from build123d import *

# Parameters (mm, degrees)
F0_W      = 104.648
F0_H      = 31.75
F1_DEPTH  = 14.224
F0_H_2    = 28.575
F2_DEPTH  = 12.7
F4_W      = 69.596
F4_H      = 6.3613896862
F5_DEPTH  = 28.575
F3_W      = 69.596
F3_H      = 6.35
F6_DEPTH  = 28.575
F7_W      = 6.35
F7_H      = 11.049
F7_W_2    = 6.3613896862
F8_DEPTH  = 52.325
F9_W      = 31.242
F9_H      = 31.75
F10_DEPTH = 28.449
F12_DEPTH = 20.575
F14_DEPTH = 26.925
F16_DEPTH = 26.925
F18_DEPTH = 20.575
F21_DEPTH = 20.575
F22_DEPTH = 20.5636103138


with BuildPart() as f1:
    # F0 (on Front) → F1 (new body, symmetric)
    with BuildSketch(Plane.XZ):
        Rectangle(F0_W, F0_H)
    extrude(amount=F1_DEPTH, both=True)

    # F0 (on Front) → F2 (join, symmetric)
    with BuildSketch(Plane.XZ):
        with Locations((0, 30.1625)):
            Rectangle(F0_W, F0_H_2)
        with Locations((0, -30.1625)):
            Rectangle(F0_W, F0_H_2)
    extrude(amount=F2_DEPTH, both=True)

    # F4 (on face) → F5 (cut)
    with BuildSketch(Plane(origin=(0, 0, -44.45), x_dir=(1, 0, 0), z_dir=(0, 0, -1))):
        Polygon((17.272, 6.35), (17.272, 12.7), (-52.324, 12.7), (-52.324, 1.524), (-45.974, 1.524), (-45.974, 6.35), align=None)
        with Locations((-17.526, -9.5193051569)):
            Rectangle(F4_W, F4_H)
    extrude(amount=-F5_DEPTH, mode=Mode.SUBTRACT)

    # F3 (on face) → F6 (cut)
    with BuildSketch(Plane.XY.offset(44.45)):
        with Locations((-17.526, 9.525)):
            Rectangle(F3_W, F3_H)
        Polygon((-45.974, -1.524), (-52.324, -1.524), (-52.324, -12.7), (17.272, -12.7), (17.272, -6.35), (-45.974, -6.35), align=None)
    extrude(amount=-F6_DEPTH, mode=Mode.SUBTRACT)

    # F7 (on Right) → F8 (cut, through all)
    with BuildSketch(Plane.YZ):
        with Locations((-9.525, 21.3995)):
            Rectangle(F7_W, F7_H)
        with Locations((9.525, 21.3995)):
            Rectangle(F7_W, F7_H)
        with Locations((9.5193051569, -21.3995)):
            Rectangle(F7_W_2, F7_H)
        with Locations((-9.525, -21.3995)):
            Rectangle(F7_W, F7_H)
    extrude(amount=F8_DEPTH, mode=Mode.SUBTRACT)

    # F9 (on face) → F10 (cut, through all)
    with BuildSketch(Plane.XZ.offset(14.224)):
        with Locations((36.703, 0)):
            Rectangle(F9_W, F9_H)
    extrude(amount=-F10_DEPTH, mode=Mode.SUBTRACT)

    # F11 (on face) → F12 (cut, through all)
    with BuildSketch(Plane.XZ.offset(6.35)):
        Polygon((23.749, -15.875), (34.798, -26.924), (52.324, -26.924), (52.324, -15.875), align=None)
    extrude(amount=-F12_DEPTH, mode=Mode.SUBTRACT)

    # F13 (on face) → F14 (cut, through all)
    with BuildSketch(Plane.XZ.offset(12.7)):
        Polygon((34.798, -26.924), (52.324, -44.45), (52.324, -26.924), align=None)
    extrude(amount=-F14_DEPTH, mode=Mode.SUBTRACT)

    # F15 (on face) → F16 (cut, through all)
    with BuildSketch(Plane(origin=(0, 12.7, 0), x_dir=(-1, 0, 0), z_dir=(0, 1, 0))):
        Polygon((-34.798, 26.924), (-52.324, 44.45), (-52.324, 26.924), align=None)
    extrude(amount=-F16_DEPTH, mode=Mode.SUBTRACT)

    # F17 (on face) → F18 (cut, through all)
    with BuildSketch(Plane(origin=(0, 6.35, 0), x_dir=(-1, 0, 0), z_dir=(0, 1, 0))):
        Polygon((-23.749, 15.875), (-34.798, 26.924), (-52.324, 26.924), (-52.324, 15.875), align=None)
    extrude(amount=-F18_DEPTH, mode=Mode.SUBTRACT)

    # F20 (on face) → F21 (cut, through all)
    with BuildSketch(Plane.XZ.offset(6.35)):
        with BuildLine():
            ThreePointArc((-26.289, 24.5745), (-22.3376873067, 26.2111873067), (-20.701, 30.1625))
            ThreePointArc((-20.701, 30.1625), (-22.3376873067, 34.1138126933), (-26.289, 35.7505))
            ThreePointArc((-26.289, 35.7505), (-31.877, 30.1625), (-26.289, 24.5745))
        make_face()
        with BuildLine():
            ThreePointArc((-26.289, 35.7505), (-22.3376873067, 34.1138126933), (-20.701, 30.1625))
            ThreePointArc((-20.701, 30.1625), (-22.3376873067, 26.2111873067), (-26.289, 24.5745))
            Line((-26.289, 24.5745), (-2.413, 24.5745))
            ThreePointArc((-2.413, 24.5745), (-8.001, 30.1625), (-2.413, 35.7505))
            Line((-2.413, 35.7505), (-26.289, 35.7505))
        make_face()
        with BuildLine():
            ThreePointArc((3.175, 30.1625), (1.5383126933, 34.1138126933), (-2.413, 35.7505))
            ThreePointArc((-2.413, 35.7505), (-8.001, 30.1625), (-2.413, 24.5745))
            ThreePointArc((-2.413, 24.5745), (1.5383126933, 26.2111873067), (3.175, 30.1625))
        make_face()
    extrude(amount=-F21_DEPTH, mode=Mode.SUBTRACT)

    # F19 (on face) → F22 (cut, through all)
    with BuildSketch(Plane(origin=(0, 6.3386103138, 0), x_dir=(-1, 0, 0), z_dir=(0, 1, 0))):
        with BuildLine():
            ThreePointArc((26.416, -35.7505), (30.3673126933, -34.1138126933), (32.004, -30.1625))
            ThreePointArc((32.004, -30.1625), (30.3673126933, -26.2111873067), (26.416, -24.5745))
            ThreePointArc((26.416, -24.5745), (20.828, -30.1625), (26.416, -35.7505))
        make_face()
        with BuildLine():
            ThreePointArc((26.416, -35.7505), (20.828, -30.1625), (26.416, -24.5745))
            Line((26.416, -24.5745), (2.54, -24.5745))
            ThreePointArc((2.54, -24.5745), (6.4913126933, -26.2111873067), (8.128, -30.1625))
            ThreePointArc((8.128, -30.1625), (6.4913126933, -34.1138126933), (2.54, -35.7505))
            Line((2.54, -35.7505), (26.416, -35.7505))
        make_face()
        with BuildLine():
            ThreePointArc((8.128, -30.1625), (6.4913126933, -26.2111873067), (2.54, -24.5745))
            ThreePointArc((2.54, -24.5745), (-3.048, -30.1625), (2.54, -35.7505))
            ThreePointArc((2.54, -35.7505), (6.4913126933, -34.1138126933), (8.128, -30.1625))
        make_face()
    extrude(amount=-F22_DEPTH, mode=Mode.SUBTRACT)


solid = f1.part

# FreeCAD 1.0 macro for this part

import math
import FreeCAD as App
import Part
import Sketcher
from FreeCAD import Vector
Q = App.Units.Quantity


def add_polygon(sketch, points):
    """Adds a closed chain of lines whose ends are joined by coincident constraints."""
    first, n = sketch.GeometryCount, len(points)
    for a, b in zip(points, points[1:] + points[:1]):
        sketch.addGeometry(Part.LineSegment(App.Vector(*a, 0), App.Vector(*b, 0)), False)
    for i in range(n):
        sketch.addConstraint(Sketcher.Constraint("Coincident", first + i, 2, first + (i + 1) % n, 1))

doc = App.newDocument("Part")
body = doc.addObject("PartDesign::Body", "Body")

# Sketch on XZ plane
sketch1 = doc.addObject("Sketcher::SketchObject", "Sketch")
body.addObject(sketch1)
sketch1.AttachmentSupport = (doc.XZ_Plane, [""])
sketch1.MapMode = "FlatFace"
add_polygon(sketch1, [(-52, 16), (-52, -16), (52, -16), (52, 16)])  # lines 0-3
sketch1.addConstraint([
    Sketcher.Constraint("Vertical", 0),
    Sketcher.Constraint("Horizontal", 1),
    Sketcher.Constraint("Vertical", 2),
    Sketcher.Constraint("Horizontal", 3),
    Sketcher.Constraint("Symmetric", 0, 2, 2, 2, -1, 1),
    Sketcher.Constraint("DistanceX", 1, 1, 1, 2, Q("4.12 in")),
    Sketcher.Constraint("DistanceY", 0, 2, 0, 1, Q("1.25 in")),
])
pad1 = doc.addObject("PartDesign::Pad", "Pad")
body.addObject(pad1)
pad1.Profile = sketch1
pad1.Length = Q("1.12 in")
pad1.Midplane = True

# Sketch on XZ plane
sketch2 = doc.addObject("Sketcher::SketchObject", "Sketch001")
body.addObject(sketch2)
sketch2.AttachmentSupport = (doc.XZ_Plane, [""])
sketch2.MapMode = "FlatFace"
add_polygon(sketch2, [(-52, 44), (-52, 16), (52, 16), (52, 44)])  # lines 0-3
add_polygon(sketch2, [(-52, -16), (-52, -44), (52, -44), (52, -16)])  # lines 4-7
sketch2.addConstraint([
    Sketcher.Constraint("Vertical", 0),
    Sketcher.Constraint("Horizontal", 1),
    Sketcher.Constraint("Vertical", 2),
    Sketcher.Constraint("Horizontal", 3),
    Sketcher.Constraint("Vertical", 4),
    Sketcher.Constraint("Horizontal", 5),
    Sketcher.Constraint("Vertical", 6),
    Sketcher.Constraint("Horizontal", 7),
    Sketcher.Constraint("Symmetric", 2, 2, 4, 2, -1, 1),
    Sketcher.Constraint("Symmetric", 0, 2, 6, 2, -1, 1),
    Sketcher.Constraint("Vertical", 3, 2, 4, 2),
    Sketcher.Constraint("DistanceX", 1, 1, 1, 2, Q("4.12 in")),
    Sketcher.Constraint("DistanceY", 4, 2, 3, 2, Q("3.5 in")),
    Sketcher.Constraint("DistanceY", 0, 2, 0, 1, Q("1.125 in")),
])
pad2 = doc.addObject("PartDesign::Pad", "Pad001")
body.addObject(pad2)
pad2.Profile = sketch2
pad2.Length = Q("1 in")
pad2.Midplane = True

# Sketch on XY plane
sketch3 = doc.addObject("Sketcher::SketchObject", "Sketch002")
body.addObject(sketch3)
sketch3.AttachmentSupport = (doc.XY_Plane, [""])
sketch3.MapMode = "FlatFace"
sketch3.AttachmentOffset = App.Placement(Vector(0, 0, -1.75 * 25.4), App.Rotation())
add_polygon(sketch3, [(17.3, -6.3), (17.3, -12.7), (-52.3, -12.7), (-52.3, -1.5), (-46, -1.5), (-46, -6.3)])  # lines 0-5
add_polygon(sketch3, [(-52.3, 6.3), (-52.3, 12.7), (17.3, 12.7), (17.3, 6.3)])  # lines 6-9
sketch3.addConstraint([
    Sketcher.Constraint("Vertical", 0),
    Sketcher.Constraint("Horizontal", 1),
    Sketcher.Constraint("Vertical", 2),
    Sketcher.Constraint("Horizontal", 3),
    Sketcher.Constraint("Vertical", 4),
    Sketcher.Constraint("Horizontal", 5),
    Sketcher.Constraint("Vertical", 6),
    Sketcher.Constraint("Horizontal", 7),
    Sketcher.Constraint("Vertical", 8),
    Sketcher.Constraint("Horizontal", 9),
    Sketcher.Constraint("Symmetric", 1, 2, 6, 2, -1),
    Sketcher.Constraint("Vertical", 5, 2, 7, 2),
    Sketcher.Constraint("Equal", 3, 0),
    Sketcher.Constraint("DistanceY", 1, 2, 6, 2, Q("1 in")),
    Sketcher.Constraint("DistanceX", 1, 2, 1, 1, Q("2.74 in")),
    Sketcher.Constraint("DistanceX", 3, 1, 3, 2, Q("0.25 in")),
    Sketcher.Constraint("DistanceY", 2, 1, 2, 2, Q("0.44 in")),
    Sketcher.Constraint("DistanceX", -1, 1, 0, 2, Q("0.68 in")),
    Sketcher.Constraint("DistanceY", 6, 1, 6, 2, 6.36139),
])
pocket1 = doc.addObject("PartDesign::Pocket", "Pocket")
body.addObject(pocket1)
pocket1.Profile = sketch3
pocket1.Length = Q("1.125 in")
pocket1.Reversed = True

# Sketch on XY plane
sketch4 = doc.addObject("Sketcher::SketchObject", "Sketch003")
body.addObject(sketch4)
sketch4.AttachmentSupport = (doc.XY_Plane, [""])
sketch4.MapMode = "FlatFace"
sketch4.AttachmentOffset = App.Placement(Vector(0, 0, 1.75 * 25.4), App.Rotation())
add_polygon(sketch4, [(-52.3, 12.7), (-52.3, 6.3), (17.3, 6.3), (17.3, 12.7)])  # lines 0-3
add_polygon(sketch4, [(-46, -1.5), (-52.3, -1.5), (-52.3, -12.7), (17.3, -12.7), (17.3, -6.3), (-46, -6.3)])  # lines 4-9
sketch4.addConstraint([
    Sketcher.Constraint("Vertical", 0),
    Sketcher.Constraint("Horizontal", 1),
    Sketcher.Constraint("Vertical", 2),
    Sketcher.Constraint("Horizontal", 3),
    Sketcher.Constraint("Horizontal", 4),
    Sketcher.Constraint("Vertical", 5),
    Sketcher.Constraint("Horizontal", 6),
    Sketcher.Constraint("Vertical", 7),
    Sketcher.Constraint("Horizontal", 8),
    Sketcher.Constraint("Vertical", 9),
    Sketcher.Constraint("Symmetric", 3, 2, 5, 2, -1),
    Sketcher.Constraint("Symmetric", 1, 2, 7, 2, -1),
    Sketcher.Constraint("Equal", 4, 0),
    Sketcher.Constraint("DistanceY", 5, 2, 3, 2, Q("1 in")),
    Sketcher.Constraint("DistanceX", 1, 1, 1, 2, Q("2.74 in")),
    Sketcher.Constraint("DistanceX", 4, 2, 4, 1, Q("0.25 in")),
    Sketcher.Constraint("DistanceY", 5, 2, 5, 1, Q("0.44 in")),
    Sketcher.Constraint("DistanceX", 0, 2, -1, 1, Q("2.06 in")),
])
pocket2 = doc.addObject("PartDesign::Pocket", "Pocket001")
body.addObject(pocket2)
pocket2.Profile = sketch4
pocket2.Length = Q("1.125 in")

# Sketch on YZ plane
sketch5 = doc.addObject("Sketcher::SketchObject", "Sketch004")
body.addObject(sketch5)
sketch5.AttachmentSupport = (doc.YZ_Plane, [""])
sketch5.MapMode = "FlatFace"
add_polygon(sketch5, [(-13, 27), (-13, 16), (-6, 16), (-6, 27)])  # lines 0-3
add_polygon(sketch5, [(6, 27), (6, 16), (13, 16), (13, 27)])  # lines 4-7
add_polygon(sketch5, [(6, -16), (6, -27), (13, -27), (13, -16)])  # lines 8-11
add_polygon(sketch5, [(-13, -16), (-13, -27), (-6, -27), (-6, -16)])  # lines 12-15
sketch5.addConstraint([
    Sketcher.Constraint("Vertical", 0),
    Sketcher.Constraint("Horizontal", 1),
    Sketcher.Constraint("Vertical", 2),
    Sketcher.Constraint("Horizontal", 3),
    Sketcher.Constraint("Vertical", 4),
    Sketcher.Constraint("Horizontal", 5),
    Sketcher.Constraint("Vertical", 6),
    Sketcher.Constraint("Horizontal", 7),
    Sketcher.Constraint("Vertical", 8),
    Sketcher.Constraint("Horizontal", 9),
    Sketcher.Constraint("Vertical", 10),
    Sketcher.Constraint("Horizontal", 11),
    Sketcher.Constraint("Vertical", 12),
    Sketcher.Constraint("Horizontal", 13),
    Sketcher.Constraint("Vertical", 14),
    Sketcher.Constraint("Horizontal", 15),
    Sketcher.Constraint("Symmetric", 3, 2, 9, 2, -1, 1),
    Sketcher.Constraint("Symmetric", 6, 2, 12, 2, -1, 1),
    Sketcher.Constraint("Symmetric", 4, 2, 14, 2, -1, 1),
    Sketcher.Constraint("Symmetric", 1, 2, 4, 2, -2),
    Sketcher.Constraint("Symmetric", 3, 2, 6, 2, -2),
    Sketcher.Constraint("Horizontal", 11, 2, 14, 2),
    Sketcher.Constraint("DistanceX", 0, 2, 5, 2, Q("1 in")),
    Sketcher.Constraint("DistanceX", 1, 1, 1, 2, Q("0.25 in")),
    Sketcher.Constraint("DistanceY", 0, 2, 0, 1, Q("0.435 in")),
    Sketcher.Constraint("DistanceY", -1, 1, 2, 2, Q("1.06 in")),
    Sketcher.Constraint("DistanceX", 9, 1, 9, 2, 6.36139),
])
pocket3 = doc.addObject("PartDesign::Pocket", "Pocket002")
body.addObject(pocket3)
pocket3.Profile = sketch5
pocket3.Type = "ThroughAll"
pocket3.Reversed = True

# Sketch on XZ plane
sketch6 = doc.addObject("Sketcher::SketchObject", "Sketch005")
body.addObject(sketch6)
sketch6.AttachmentSupport = (doc.XZ_Plane, [""])
sketch6.MapMode = "FlatFace"
sketch6.AttachmentOffset = App.Placement(Vector(0, 0, 0.56 * 25.4), App.Rotation())
add_polygon(sketch6, [(21, 16), (21, -16), (52, -16), (52, 16)])  # lines 0-3
sketch6.addConstraint([
    Sketcher.Constraint("Vertical", 0),
    Sketcher.Constraint("Horizontal", 1),
    Sketcher.Constraint("Vertical", 2),
    Sketcher.Constraint("Horizontal", 3),
    Sketcher.Constraint("DistanceX", 1, 1, 1, 2, Q("1.23 in")),
    Sketcher.Constraint("DistanceY", 0, 2, 0, 1, Q("1.25 in")),
    Sketcher.Constraint("DistanceX", -1, 1, 0, 2, Q("0.83 in")),
    Sketcher.Constraint("DistanceY", 0, 2, -1, 1, Q("0.625 in")),
])
pocket4 = doc.addObject("PartDesign::Pocket", "Pocket003")
body.addObject(pocket4)
pocket4.Profile = sketch6
pocket4.Type = "ThroughAll"

# Sketch on XZ plane
sketch7 = doc.addObject("Sketcher::SketchObject", "Sketch006")
body.addObject(sketch7)
sketch7.AttachmentSupport = (doc.XZ_Plane, [""])
sketch7.MapMode = "FlatFace"
sketch7.AttachmentOffset = App.Placement(Vector(0, 0, 0.25 * 25.4), App.Rotation())
add_polygon(sketch7, [(24, -16), (35, -27), (52, -27), (52, -16)])  # lines 0-3
sketch7.addConstraint([
    Sketcher.Constraint("Horizontal", 1),
    Sketcher.Constraint("Vertical", 2),
    Sketcher.Constraint("Horizontal", 3),
    Sketcher.Constraint("Angle", 0, Q("-45 deg")),
    Sketcher.Constraint("DistanceX", 1, 1, 1, 2, Q("0.69 in")),
    Sketcher.Constraint("DistanceX", 3, 2, 3, 1, Q("1.125 in")),
    Sketcher.Constraint("DistanceX", -1, 1, 0, 2, Q("1.37 in")),
    Sketcher.Constraint("DistanceY", 0, 2, -1, 1, Q("1.06 in")),
])
pocket5 = doc.addObject("PartDesign::Pocket", "Pocket004")
body.addObject(pocket5)
pocket5.Profile = sketch7
pocket5.Type = "ThroughAll"

# Sketch on XZ plane
sketch8 = doc.addObject("Sketcher::SketchObject", "Sketch007")
body.addObject(sketch8)
sketch8.AttachmentSupport = (doc.XZ_Plane, [""])
sketch8.MapMode = "FlatFace"
sketch8.AttachmentOffset = App.Placement(Vector(0, 0, 0.5 * 25.4), App.Rotation())
add_polygon(sketch8, [(35, -27), (52, -44), (52, -27)])  # lines 0-2
sketch8.addConstraint([
    Sketcher.Constraint("Vertical", 1),
    Sketcher.Constraint("Horizontal", 2),
    Sketcher.Constraint("Equal", 2, 1),
    Sketcher.Constraint("DistanceX", 2, 2, 2, 1, Q("0.69 in")),
    Sketcher.Constraint("DistanceX", -1, 1, 0, 2, Q("2.06 in")),
    Sketcher.Constraint("DistanceY", 0, 2, -1, 1, Q("1.75 in")),
])
pocket6 = doc.addObject("PartDesign::Pocket", "Pocket005")
body.addObject(pocket6)
pocket6.Profile = sketch8
pocket6.Type = "ThroughAll"

# Sketch on XZ plane
sketch9 = doc.addObject("Sketcher::SketchObject", "Sketch008")
body.addObject(sketch9)
sketch9.AttachmentSupport = (doc.XZ_Plane, [""])
sketch9.MapMode = "FlatFace"
sketch9.AttachmentOffset = App.Placement(Vector(0, 0, -0.5 * 25.4), App.Rotation())
add_polygon(sketch9, [(35, 27), (52, 44), (52, 27)])  # lines 0-2
sketch9.addConstraint([
    Sketcher.Constraint("Vertical", 1),
    Sketcher.Constraint("Horizontal", 2),
    Sketcher.Constraint("Equal", 2, 1),
    Sketcher.Constraint("DistanceX", 2, 2, 2, 1, Q("0.69 in")),
    Sketcher.Constraint("DistanceX", -1, 1, 0, 2, Q("2.06 in")),
    Sketcher.Constraint("DistanceY", -1, 1, 0, 2, Q("1.75 in")),
])
pocket7 = doc.addObject("PartDesign::Pocket", "Pocket006")
body.addObject(pocket7)
pocket7.Profile = sketch9
pocket7.Type = "ThroughAll"
pocket7.Reversed = True

# Sketch on XZ plane
sketch10 = doc.addObject("Sketcher::SketchObject", "Sketch009")
body.addObject(sketch10)
sketch10.AttachmentSupport = (doc.XZ_Plane, [""])
sketch10.MapMode = "FlatFace"
sketch10.AttachmentOffset = App.Placement(Vector(0, 0, -0.25 * 25.4), App.Rotation())
add_polygon(sketch10, [(24, 16), (35, 27), (52, 27), (52, 16)])  # lines 0-3
sketch10.addConstraint([
    Sketcher.Constraint("Horizontal", 1),
    Sketcher.Constraint("Vertical", 2),
    Sketcher.Constraint("Horizontal", 3),
    Sketcher.Constraint("Angle", 0, Q("45 deg")),
    Sketcher.Constraint("DistanceX", 1, 1, 1, 2, Q("0.69 in")),
    Sketcher.Constraint("DistanceX", 3, 2, 3, 1, Q("1.125 in")),
    Sketcher.Constraint("DistanceX", -1, 1, 0, 2, Q("1.37 in")),
    Sketcher.Constraint("DistanceY", -1, 1, 0, 2, Q("1.06 in")),
])
pocket8 = doc.addObject("PartDesign::Pocket", "Pocket007")
body.addObject(pocket8)
pocket8.Profile = sketch10
pocket8.Type = "ThroughAll"
pocket8.Reversed = True

# Sketch on XZ plane
sketch11 = doc.addObject("Sketcher::SketchObject", "Sketch010")
body.addObject(sketch11)
sketch11.AttachmentSupport = (doc.XZ_Plane, [""])
sketch11.MapMode = "FlatFace"
sketch11.AttachmentOffset = App.Placement(Vector(0, 0, 0.25 * 25.4), App.Rotation())
sketch11.addGeometry([
    Part.ArcOfCircle(Part.Circle(Vector(-26, 30, 0), Vector(0, 0, 1), 6), math.radians(90), math.radians(270)),  # 0
    Part.LineSegment(Vector(-26, 25, 0), Vector(-2, 25, 0)),  # 1
    Part.ArcOfCircle(Part.Circle(Vector(-2, 30, 0), Vector(0, 0, 1), 6), math.radians(-90), math.radians(0)),  # 2
    Part.ArcOfCircle(Part.Circle(Vector(-2, 30, 0), Vector(0, 0, 1), 6), math.radians(0), math.radians(90)),  # 3
    Part.LineSegment(Vector(-2, 36, 0), Vector(-26, 36, 0)),  # 4
], False)
sketch11.addConstraint([
    Sketcher.Constraint("Tangent", 0, 2, 1, 1),
    Sketcher.Constraint("Tangent", 1, 2, 2, 1),
    Sketcher.Constraint("Tangent", 2, 2, 3, 1),
    Sketcher.Constraint("Tangent", 3, 2, 4, 1),
    Sketcher.Constraint("Tangent", 4, 2, 0, 1),
    Sketcher.Constraint("Horizontal", 1),
    Sketcher.Constraint("Horizontal", 4),
    Sketcher.Constraint("Equal", 0, 2),
    Sketcher.Constraint("Horizontal", 3, 3, 2, 2),
    Sketcher.Constraint("Radius", 0, Q("0.22 in")),
    Sketcher.Constraint("DistanceX", 1, 1, 1, 2, Q("0.94 in")),
    Sketcher.Constraint("DistanceX", 0, 3, -1, 1, Q("1.035 in")),
    Sketcher.Constraint("DistanceY", -1, 1, 0, 3, Q("1.1875 in")),
])
pocket9 = doc.addObject("PartDesign::Pocket", "Pocket008")
body.addObject(pocket9)
pocket9.Profile = sketch11
pocket9.Type = "ThroughAll"

# Sketch on XZ plane
sketch12 = doc.addObject("Sketcher::SketchObject", "Sketch011")
body.addObject(sketch12)
sketch12.AttachmentSupport = (doc.XZ_Plane, [""])
sketch12.MapMode = "FlatFace"
sketch12.AttachmentOffset = App.Placement(Vector(0, 0, -6.33861), App.Rotation())
sketch12.addGeometry([
    Part.ArcOfCircle(Part.Circle(Vector(-26, -30, 0), Vector(0, 0, 1), 6), math.radians(180), math.radians(270)),  # 0
    Part.ArcOfCircle(Part.Circle(Vector(-26, -30, 0), Vector(0, 0, 1), 6), math.radians(90), math.radians(180)),  # 1
    Part.LineSegment(Vector(-26, -25, 0), Vector(-3, -25, 0)),  # 2
    Part.ArcOfCircle(Part.Circle(Vector(-3, -30, 0), Vector(0, 0, 1), 6), math.radians(-90), math.radians(90)),  # 3
    Part.LineSegment(Vector(-3, -36, 0), Vector(-26, -36, 0)),  # 4
], False)
sketch12.addConstraint([
    Sketcher.Constraint("Tangent", 0, 1, 1, 2),
    Sketcher.Constraint("Tangent", 1, 1, 2, 1),
    Sketcher.Constraint("Tangent", 2, 2, 3, 2),
    Sketcher.Constraint("Tangent", 3, 1, 4, 1),
    Sketcher.Constraint("Tangent", 4, 2, 0, 2),
    Sketcher.Constraint("Horizontal", 2),
    Sketcher.Constraint("Horizontal", 4),
    Sketcher.Constraint("Equal", 0, 1),
    Sketcher.Constraint("Horizontal", 3, 3, 0, 1),
    Sketcher.Constraint("Radius", 0, Q("0.22 in")),
    Sketcher.Constraint("DistanceX", 2, 1, 2, 2, Q("0.94 in")),
    Sketcher.Constraint("DistanceX", 3, 3, -1, 1, Q("0.1 in")),
    Sketcher.Constraint("DistanceY", 0, 3, -1, 1, Q("1.1875 in")),
])
pocket10 = doc.addObject("PartDesign::Pocket", "Pocket009")
body.addObject(pocket10)
pocket10.Profile = sketch12
pocket10.Type = "ThroughAll"
pocket10.Reversed = True

doc.recompute()
